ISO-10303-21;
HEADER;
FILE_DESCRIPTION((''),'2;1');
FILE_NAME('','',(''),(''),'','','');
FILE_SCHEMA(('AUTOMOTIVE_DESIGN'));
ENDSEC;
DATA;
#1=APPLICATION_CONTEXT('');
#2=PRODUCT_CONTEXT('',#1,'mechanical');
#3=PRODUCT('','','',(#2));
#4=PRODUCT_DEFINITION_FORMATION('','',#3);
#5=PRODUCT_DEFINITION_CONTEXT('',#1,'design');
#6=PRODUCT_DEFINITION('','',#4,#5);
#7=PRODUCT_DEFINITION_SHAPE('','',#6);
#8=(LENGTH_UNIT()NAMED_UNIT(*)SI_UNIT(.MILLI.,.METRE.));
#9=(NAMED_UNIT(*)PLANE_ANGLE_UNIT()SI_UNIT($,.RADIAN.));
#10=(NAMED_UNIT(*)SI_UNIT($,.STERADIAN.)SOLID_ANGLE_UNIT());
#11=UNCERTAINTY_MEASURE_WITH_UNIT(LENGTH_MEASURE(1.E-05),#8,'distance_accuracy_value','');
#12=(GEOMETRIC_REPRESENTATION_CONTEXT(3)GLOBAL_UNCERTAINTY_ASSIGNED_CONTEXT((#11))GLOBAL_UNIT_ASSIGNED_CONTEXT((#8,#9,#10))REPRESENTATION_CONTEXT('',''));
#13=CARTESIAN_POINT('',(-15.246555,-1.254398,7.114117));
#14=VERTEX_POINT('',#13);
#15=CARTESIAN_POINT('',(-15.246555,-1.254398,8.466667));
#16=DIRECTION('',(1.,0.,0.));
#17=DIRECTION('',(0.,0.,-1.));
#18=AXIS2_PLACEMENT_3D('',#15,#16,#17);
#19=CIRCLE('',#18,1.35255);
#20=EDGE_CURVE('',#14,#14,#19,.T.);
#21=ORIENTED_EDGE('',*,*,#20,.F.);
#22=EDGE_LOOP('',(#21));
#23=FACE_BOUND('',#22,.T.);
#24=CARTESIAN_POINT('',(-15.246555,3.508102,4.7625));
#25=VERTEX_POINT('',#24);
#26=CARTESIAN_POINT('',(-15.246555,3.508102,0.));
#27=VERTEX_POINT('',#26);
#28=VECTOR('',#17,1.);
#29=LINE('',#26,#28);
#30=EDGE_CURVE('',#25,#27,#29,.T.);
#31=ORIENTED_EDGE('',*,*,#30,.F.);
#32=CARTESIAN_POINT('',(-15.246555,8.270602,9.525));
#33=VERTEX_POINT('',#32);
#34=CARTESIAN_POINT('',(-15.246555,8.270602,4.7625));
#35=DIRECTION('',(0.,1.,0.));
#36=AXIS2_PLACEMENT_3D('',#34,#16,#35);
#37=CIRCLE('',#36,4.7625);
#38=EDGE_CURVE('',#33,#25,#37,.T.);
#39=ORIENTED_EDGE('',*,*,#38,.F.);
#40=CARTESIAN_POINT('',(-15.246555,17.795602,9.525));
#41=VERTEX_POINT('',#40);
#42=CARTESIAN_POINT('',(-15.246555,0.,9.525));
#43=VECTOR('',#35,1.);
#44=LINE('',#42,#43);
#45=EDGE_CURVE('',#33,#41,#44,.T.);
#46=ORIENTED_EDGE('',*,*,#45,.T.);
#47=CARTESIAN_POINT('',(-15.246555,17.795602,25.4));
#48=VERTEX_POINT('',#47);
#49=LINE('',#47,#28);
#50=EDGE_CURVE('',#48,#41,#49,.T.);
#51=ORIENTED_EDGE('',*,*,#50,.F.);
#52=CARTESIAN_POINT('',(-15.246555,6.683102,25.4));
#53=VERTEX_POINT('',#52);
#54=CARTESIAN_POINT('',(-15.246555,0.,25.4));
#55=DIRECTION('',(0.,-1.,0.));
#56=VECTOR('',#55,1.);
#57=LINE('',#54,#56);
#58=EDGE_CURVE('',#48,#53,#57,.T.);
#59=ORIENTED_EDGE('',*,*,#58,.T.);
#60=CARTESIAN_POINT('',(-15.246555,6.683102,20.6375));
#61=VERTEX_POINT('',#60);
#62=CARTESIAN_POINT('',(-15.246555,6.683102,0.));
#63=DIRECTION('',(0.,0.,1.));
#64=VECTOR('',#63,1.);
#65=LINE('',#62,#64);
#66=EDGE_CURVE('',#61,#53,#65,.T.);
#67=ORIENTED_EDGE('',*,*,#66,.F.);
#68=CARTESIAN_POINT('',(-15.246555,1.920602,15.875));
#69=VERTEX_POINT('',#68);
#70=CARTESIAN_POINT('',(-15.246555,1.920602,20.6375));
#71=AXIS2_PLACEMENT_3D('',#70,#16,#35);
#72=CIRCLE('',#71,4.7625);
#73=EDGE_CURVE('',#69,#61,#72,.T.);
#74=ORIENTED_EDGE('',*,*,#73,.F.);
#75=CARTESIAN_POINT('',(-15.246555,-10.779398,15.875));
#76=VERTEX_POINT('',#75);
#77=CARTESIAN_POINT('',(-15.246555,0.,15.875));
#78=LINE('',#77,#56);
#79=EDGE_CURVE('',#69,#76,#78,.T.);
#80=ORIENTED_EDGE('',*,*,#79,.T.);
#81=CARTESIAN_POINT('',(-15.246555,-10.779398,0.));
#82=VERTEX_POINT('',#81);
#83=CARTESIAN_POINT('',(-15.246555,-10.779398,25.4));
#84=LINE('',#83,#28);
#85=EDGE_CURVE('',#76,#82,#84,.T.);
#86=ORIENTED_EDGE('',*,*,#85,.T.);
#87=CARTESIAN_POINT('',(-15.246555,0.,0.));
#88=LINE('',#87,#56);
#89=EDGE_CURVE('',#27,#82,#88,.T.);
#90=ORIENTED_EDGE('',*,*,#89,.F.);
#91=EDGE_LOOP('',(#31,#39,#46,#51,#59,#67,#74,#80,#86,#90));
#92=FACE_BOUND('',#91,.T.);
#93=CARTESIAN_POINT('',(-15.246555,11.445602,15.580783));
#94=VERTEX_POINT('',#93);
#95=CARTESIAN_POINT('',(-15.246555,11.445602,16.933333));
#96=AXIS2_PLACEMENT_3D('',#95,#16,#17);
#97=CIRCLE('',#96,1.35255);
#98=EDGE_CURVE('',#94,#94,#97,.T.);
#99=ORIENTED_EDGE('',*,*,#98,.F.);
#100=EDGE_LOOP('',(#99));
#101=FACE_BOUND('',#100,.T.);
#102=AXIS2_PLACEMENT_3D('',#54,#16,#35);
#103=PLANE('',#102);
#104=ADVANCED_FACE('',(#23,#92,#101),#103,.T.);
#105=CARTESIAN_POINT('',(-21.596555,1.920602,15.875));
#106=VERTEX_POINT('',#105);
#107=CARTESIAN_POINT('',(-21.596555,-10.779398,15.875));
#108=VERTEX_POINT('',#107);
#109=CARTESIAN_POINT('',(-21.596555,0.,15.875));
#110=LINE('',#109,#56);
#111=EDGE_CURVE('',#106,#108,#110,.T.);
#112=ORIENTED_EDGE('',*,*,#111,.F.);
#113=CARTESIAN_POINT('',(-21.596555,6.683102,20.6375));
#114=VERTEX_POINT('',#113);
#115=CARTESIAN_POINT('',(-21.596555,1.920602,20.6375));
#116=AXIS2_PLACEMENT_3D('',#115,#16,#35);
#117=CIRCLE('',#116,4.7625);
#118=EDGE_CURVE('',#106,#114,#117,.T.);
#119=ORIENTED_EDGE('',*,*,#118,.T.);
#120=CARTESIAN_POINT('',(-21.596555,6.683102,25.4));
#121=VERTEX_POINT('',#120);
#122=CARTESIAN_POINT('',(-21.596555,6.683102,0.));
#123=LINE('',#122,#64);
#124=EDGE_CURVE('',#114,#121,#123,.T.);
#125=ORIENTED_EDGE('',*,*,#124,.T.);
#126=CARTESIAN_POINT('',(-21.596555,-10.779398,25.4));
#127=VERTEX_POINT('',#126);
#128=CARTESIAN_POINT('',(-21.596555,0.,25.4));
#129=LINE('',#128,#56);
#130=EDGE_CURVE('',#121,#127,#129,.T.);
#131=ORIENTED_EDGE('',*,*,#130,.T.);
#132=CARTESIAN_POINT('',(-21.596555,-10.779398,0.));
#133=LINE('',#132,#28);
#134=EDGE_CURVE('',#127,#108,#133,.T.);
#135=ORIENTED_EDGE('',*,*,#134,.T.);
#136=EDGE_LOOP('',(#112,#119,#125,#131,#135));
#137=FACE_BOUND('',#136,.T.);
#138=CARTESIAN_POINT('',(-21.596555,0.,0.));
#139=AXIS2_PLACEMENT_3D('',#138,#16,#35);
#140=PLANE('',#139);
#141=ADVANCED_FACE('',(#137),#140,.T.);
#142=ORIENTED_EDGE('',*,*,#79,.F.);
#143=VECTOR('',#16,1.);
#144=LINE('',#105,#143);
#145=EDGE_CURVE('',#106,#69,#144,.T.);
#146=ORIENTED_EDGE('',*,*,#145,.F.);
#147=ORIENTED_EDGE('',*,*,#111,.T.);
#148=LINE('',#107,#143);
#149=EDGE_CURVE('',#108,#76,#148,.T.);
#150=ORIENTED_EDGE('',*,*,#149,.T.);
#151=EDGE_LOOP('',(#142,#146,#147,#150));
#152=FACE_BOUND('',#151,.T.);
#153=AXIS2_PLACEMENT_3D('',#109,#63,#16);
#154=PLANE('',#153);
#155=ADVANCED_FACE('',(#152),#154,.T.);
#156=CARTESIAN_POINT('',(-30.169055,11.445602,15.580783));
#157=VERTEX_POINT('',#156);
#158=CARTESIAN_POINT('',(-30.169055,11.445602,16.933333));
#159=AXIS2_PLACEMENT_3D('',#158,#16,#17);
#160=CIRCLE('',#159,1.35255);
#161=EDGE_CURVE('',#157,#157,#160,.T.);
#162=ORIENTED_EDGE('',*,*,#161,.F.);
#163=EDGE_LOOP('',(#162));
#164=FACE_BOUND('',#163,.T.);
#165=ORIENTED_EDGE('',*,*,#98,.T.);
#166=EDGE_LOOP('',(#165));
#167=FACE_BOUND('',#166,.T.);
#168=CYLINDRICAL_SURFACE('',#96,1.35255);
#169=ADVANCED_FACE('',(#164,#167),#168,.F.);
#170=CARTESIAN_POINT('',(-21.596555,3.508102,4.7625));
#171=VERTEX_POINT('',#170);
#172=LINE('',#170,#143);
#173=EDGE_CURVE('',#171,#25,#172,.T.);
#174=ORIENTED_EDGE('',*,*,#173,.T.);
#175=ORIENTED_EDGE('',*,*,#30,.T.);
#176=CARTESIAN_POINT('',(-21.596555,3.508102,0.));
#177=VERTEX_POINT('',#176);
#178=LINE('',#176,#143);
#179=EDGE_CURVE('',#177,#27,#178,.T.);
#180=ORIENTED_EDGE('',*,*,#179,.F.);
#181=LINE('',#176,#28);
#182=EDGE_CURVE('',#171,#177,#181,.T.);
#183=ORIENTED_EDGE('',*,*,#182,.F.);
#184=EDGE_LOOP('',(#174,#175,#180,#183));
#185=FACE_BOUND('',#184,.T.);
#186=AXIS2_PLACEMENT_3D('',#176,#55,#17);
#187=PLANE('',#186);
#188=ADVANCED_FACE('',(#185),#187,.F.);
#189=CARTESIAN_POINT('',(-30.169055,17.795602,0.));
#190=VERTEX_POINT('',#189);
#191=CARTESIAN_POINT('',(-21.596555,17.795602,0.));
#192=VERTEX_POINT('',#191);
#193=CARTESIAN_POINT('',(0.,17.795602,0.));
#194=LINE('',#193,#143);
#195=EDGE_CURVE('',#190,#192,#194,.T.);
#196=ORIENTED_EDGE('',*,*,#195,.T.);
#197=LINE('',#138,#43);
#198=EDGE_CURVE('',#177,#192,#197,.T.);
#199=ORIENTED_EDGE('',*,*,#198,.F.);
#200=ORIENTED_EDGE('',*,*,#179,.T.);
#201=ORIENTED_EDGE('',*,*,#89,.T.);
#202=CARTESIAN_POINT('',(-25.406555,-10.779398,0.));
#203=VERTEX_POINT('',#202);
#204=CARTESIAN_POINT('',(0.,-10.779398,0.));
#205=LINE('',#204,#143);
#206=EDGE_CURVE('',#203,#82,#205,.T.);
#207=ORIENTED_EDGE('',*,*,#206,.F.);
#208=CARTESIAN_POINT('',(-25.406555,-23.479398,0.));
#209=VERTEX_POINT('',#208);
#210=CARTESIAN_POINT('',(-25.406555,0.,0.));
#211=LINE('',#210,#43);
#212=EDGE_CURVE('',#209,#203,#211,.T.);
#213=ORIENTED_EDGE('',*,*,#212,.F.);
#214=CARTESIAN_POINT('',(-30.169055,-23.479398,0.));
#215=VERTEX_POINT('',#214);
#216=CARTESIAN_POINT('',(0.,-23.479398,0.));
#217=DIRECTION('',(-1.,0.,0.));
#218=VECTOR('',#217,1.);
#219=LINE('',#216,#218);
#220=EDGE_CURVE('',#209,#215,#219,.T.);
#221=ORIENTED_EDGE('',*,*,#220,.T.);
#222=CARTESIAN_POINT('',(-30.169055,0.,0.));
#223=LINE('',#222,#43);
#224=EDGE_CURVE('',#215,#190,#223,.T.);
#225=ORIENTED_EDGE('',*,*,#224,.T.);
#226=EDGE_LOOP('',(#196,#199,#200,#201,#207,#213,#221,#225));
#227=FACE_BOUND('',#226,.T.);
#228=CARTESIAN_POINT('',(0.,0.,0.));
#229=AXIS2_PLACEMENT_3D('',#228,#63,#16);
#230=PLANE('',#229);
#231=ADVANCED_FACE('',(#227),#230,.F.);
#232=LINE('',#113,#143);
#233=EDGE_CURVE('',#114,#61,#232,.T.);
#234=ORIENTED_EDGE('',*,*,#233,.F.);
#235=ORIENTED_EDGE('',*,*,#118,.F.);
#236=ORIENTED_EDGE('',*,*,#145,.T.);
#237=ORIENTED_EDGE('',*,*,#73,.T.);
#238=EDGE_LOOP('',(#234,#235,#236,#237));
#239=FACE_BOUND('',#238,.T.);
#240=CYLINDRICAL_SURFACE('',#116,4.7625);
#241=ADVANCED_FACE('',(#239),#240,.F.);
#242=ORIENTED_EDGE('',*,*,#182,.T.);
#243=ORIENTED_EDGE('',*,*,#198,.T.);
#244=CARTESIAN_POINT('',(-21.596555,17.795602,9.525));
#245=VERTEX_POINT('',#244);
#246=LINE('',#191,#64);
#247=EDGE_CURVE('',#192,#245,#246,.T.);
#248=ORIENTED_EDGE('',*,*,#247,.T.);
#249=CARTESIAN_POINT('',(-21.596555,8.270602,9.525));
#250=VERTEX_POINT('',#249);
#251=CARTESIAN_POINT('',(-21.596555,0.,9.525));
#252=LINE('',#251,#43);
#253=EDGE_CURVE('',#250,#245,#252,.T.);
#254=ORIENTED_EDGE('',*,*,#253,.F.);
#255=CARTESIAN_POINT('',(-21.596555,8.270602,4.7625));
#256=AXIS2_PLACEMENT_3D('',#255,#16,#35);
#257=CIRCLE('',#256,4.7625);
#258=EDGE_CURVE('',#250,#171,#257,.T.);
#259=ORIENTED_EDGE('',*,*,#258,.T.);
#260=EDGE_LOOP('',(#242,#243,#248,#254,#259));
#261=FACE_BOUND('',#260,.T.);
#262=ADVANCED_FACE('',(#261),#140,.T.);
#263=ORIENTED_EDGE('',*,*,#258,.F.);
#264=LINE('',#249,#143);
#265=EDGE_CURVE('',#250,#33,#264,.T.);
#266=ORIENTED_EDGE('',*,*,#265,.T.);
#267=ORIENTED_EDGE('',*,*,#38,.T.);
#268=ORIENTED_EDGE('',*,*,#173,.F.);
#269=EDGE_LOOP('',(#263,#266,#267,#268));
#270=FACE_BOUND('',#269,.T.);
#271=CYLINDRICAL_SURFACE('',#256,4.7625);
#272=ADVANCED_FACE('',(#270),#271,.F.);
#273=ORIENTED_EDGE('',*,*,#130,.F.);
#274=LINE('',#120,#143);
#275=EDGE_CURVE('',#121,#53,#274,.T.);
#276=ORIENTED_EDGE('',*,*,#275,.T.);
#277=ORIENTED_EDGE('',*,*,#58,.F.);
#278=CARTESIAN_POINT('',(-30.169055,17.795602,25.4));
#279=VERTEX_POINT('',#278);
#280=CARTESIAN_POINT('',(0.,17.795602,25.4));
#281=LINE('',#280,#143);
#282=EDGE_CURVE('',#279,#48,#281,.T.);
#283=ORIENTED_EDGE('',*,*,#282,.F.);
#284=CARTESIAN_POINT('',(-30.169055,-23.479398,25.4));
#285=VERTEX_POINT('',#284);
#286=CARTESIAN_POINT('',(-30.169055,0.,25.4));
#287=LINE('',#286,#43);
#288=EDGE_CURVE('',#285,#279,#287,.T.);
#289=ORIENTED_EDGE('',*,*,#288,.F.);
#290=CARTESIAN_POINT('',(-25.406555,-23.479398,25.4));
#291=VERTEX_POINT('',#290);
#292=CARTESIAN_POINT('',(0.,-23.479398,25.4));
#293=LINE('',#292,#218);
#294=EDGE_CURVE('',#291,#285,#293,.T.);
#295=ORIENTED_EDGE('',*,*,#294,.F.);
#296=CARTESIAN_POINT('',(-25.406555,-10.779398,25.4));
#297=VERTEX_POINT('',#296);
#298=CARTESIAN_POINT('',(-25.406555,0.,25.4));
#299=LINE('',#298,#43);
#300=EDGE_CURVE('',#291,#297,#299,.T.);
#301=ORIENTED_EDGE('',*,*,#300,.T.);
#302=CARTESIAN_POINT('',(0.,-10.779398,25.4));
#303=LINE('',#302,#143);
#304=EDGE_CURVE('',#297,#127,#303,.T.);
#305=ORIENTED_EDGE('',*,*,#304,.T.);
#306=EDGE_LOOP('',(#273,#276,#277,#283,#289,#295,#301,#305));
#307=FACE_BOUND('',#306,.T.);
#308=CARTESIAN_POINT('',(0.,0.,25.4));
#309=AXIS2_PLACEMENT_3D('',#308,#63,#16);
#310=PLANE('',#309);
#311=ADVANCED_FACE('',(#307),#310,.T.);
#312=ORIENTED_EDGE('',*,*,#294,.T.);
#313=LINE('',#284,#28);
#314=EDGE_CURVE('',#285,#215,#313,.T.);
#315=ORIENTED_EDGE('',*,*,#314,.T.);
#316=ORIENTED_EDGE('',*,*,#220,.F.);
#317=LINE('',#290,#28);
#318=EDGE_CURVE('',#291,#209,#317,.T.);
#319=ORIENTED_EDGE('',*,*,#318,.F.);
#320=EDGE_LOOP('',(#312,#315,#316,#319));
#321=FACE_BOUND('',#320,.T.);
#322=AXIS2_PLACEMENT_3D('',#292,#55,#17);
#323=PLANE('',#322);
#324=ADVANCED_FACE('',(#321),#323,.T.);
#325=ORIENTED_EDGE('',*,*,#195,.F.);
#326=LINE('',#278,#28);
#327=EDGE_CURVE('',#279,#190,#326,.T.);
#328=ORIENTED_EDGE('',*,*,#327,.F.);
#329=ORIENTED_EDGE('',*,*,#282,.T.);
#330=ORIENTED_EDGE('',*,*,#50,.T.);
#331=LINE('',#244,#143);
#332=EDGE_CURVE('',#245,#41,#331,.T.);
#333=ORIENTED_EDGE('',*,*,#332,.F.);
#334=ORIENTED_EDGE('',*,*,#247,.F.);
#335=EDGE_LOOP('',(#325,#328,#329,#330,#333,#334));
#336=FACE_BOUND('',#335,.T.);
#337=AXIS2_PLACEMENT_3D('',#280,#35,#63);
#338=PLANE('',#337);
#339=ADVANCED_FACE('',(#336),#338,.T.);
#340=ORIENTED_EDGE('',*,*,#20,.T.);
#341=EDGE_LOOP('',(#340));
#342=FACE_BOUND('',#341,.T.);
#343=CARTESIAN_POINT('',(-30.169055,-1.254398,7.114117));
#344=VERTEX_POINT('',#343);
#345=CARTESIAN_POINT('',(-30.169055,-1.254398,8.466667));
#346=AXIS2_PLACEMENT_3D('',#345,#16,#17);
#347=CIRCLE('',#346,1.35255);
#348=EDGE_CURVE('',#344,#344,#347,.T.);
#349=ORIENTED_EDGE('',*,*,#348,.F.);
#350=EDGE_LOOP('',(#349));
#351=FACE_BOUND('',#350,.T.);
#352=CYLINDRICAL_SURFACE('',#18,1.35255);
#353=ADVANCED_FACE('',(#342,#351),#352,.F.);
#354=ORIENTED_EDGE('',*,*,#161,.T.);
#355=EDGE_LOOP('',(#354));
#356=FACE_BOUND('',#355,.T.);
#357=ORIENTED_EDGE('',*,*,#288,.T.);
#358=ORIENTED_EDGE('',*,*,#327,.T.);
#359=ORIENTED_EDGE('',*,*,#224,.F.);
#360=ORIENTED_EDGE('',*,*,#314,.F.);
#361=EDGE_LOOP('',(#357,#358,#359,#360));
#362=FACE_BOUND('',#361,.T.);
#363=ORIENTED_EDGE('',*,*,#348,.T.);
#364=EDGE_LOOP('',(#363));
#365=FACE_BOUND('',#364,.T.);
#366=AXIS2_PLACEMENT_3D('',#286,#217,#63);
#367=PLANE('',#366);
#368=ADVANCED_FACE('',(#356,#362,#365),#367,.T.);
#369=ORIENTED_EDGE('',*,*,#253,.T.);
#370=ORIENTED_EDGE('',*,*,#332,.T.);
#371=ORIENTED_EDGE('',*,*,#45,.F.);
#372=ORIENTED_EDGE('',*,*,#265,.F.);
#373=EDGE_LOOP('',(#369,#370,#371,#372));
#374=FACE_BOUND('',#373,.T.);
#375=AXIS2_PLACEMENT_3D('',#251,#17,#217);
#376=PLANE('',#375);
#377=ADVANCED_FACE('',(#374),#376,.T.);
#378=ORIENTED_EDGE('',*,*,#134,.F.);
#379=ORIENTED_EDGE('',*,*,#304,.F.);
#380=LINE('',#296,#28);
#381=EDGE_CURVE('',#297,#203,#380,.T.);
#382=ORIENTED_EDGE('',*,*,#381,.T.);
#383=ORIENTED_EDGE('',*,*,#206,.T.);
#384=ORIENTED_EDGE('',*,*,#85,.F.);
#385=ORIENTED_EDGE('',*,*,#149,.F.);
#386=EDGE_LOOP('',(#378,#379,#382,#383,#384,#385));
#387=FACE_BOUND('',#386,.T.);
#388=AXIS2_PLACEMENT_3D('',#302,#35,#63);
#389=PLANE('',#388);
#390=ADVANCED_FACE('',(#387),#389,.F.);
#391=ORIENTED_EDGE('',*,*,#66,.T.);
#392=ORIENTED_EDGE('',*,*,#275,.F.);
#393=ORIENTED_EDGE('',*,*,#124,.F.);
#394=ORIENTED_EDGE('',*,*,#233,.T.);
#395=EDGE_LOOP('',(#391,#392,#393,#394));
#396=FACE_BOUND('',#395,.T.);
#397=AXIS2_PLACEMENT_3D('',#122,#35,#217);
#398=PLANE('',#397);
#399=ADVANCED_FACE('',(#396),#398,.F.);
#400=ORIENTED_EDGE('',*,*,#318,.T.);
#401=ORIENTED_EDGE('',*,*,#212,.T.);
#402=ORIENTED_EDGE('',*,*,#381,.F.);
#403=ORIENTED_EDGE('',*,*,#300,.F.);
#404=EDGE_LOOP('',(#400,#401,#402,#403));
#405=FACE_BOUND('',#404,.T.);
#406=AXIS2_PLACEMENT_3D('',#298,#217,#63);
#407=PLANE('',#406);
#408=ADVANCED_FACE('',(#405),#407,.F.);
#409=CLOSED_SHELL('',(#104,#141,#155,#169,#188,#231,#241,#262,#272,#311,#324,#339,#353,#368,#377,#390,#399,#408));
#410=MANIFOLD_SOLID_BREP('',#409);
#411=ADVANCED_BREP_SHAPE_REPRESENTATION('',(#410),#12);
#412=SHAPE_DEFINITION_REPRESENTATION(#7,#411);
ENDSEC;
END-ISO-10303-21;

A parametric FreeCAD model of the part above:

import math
import FreeCAD as App
import Part
import Sketcher
from FreeCAD import Vector
Q = App.Units.Quantity


def add_polygon(sketch, points):
    """Adds a closed chain of lines whose ends are joined by coincident constraints."""
    first, n = sketch.GeometryCount, len(points)
    for a, b in zip(points, points[1:] + points[:1]):
        sketch.addGeometry(Part.LineSegment(App.Vector(*a, 0), App.Vector(*b, 0)), False)
    for i in range(n):
        sketch.addConstraint(Sketcher.Constraint("Coincident", first + i, 2, first + (i + 1) % n, 1))

doc = App.newDocument("Part")
params = doc.addObject("Spreadsheet::Sheet", "Params")
for row, (alias, value) in enumerate([
    ("sketch1_width", "0.4 in"),
    ("sketch1_height", "0.5 in"),
    ("sketch1_width2", "0.1875 in"),
    ("sketch1_height2", "1.125 in"),
    ("pad1_length", "1 in"),
    ("hole_diameter", "0.1065 in"),
    ("sketch3_width", "0.5 in"),
    ("sketch3_radius", "0.1875 in"),
    ("sketch3_width2", "0.375 in"),
    ("pocket1_length", "0.25 in"),
], start=1):
    params.set(f"A{row}", alias)
    params.set(f"B{row}", "=" + value)
    params.setAlias(f"B{row}", alias)

body = doc.addObject("PartDesign::Body", "Body")

sketch1 = body.newObject("Sketcher::SketchObject", "Sketch")
sketch1.AttachmentSupport = (doc.getObject("XY_Plane"), [""])
sketch1.MapMode = "FlatFace"
add_polygon(sketch1, [(-30.2, -23.5), (-25.4, -23.5), (-25.4, -10.8), (-15.2, -10.8), (-15.2, 17.8), (-30.2, 17.8)])
sketch1.addConstraint(Sketcher.Constraint("Horizontal", 0))
sketch1.addConstraint(Sketcher.Constraint("Vertical", 1))
sketch1.addConstraint(Sketcher.Constraint("Horizontal", 2))
sketch1.addConstraint(Sketcher.Constraint("Vertical", 3))
sketch1.addConstraint(Sketcher.Constraint("Horizontal", 4))
sketch1.addConstraint(Sketcher.Constraint("Vertical", 5))
sketch1.addConstraint(Sketcher.Constraint("DistanceX", 2, 1, 2, 2, Q("0.4 in")))
sketch1.addConstraint(Sketcher.Constraint("DistanceY", 1, 1, 1, 2, Q("0.5 in")))
sketch1.addConstraint(Sketcher.Constraint("DistanceX", 0, 1, 0, 2, Q("0.1875 in")))
sketch1.addConstraint(Sketcher.Constraint("DistanceY", 3, 1, 3, 2, Q("1.125 in")))
sketch1.addConstraint(Sketcher.Constraint("DistanceX", 0, 2, -1, 1, 25.406555))
sketch1.addConstraint(Sketcher.Constraint("DistanceY", 0, 2, -1, 1, 23.479398))
sketch1.setExpression("Constraints[12]", "Params.sketch1_width")
sketch1.setExpression("Constraints[13]", "Params.sketch1_height")
sketch1.setExpression("Constraints[14]", "Params.sketch1_width2")
sketch1.setExpression("Constraints[15]", "Params.sketch1_height2")
pad1 = body.newObject("PartDesign::Pad", "Pad")
pad1.Profile = sketch1
pad1.setExpression("Length", "Params.pad1_length")

sketch2 = body.newObject("Sketcher::SketchObject", "Sketch001")
sketch2.AttachmentSupport = (doc.getObject("YZ_Plane"), [""])
sketch2.MapMode = "FlatFace"
sketch2.AttachmentOffset = App.Placement(Vector(0, 0, -15.246555), App.Rotation())
sketch2.addGeometry(Part.Circle(Vector(11.4, 16.9, 0), Vector(0, 0, 1), 1.4), False)
sketch2.addGeometry(Part.Circle(Vector(-1.3, 8.5, 0), Vector(0, 0, 1), 1.4), False)
sketch2.addConstraint(Sketcher.Constraint("Equal", 0, 1))
sketch2.addConstraint(Sketcher.Constraint("Diameter", 0, Q("0.1065 in")))
sketch2.addConstraint(Sketcher.Constraint("DistanceX", 1, 3, 0, 3, Q("0.5 in")))
sketch2.addConstraint(Sketcher.Constraint("DistanceX", -1, 1, 0, 3, 11.445602))
sketch2.addConstraint(Sketcher.Constraint("DistanceY", -1, 1, 0, 3, 16.933333))
sketch2.addConstraint(Sketcher.Constraint("DistanceY", -1, 1, 1, 3, 8.466667))
doc.recompute()
hole = body.newObject("PartDesign::Hole", "Hole")
hole.Profile = sketch2
hole.ThreadType = "None"
hole.setExpression("Diameter", "Params.hole_diameter")
hole.DepthType = "ThroughAll"

sketch3 = body.newObject("Sketcher::SketchObject", "Sketch002")
sketch3.AttachmentSupport = (doc.getObject("YZ_Plane"), [""])
sketch3.MapMode = "FlatFace"
sketch3.AttachmentOffset = App.Placement(Vector(0, 0, -15.246555), App.Rotation())
sketch3.addGeometry(Part.LineSegment(Vector(6.7, 20.6, 0), Vector(6.7, 25.4, 0)), False)
sketch3.addGeometry(Part.LineSegment(Vector(6.7, 25.4, 0), Vector(-10.8, 25.4, 0)), False)
sketch3.addGeometry(Part.LineSegment(Vector(-10.8, 25.4, 0), Vector(-10.8, 15.9, 0)), False)
sketch3.addGeometry(Part.LineSegment(Vector(-10.8, 15.9, 0), Vector(1.9, 15.9, 0)), False)
sketch3.addGeometry(Part.ArcOfCircle(Part.Circle(Vector(1.9, 20.6, 0), Vector(0, 0, 1), 4.8), math.radians(-90), math.radians(0)), False)
sketch3.addGeometry(Part.LineSegment(Vector(17.8, 0, 0), Vector(17.8, 9.5, 0)), False)
sketch3.addGeometry(Part.LineSegment(Vector(17.8, 9.5, 0), Vector(8.3, 9.5, 0)), False)
sketch3.addGeometry(Part.ArcOfCircle(Part.Circle(Vector(8.3, 4.8, 0), Vector(0, 0, 1), 4.8), math.radians(90), math.radians(180)), False)
sketch3.addGeometry(Part.LineSegment(Vector(3.5, 4.8, 0), Vector(3.5, 0, 0)), False)
sketch3.addGeometry(Part.LineSegment(Vector(3.5, 0, 0), Vector(17.8, 0, 0)), False)
sketch3.addConstraint(Sketcher.Constraint("Coincident", 0, 2, 1, 1))
sketch3.addConstraint(Sketcher.Constraint("Coincident", 1, 2, 2, 1))
sketch3.addConstraint(Sketcher.Constraint("Coincident", 2, 2, 3, 1))
sketch3.addConstraint(Sketcher.Constraint("Tangent", 3, 2, 4, 1))
sketch3.addConstraint(Sketcher.Constraint("Tangent", 4, 2, 0, 1))
sketch3.addConstraint(Sketcher.Constraint("Coincident", 5, 2, 6, 1))
sketch3.addConstraint(Sketcher.Constraint("Tangent", 6, 2, 7, 1))
sketch3.addConstraint(Sketcher.Constraint("Tangent", 7, 2, 8, 1))
sketch3.addConstraint(Sketcher.Constraint("Coincident", 8, 2, 9, 1))
sketch3.addConstraint(Sketcher.Constraint("Coincident", 9, 2, 5, 1))
sketch3.addConstraint(Sketcher.Constraint("Vertical", 0))
sketch3.addConstraint(Sketcher.Constraint("Horizontal", 1))
sketch3.addConstraint(Sketcher.Constraint("Vertical", 2))
sketch3.addConstraint(Sketcher.Constraint("Horizontal", 3))
sketch3.addConstraint(Sketcher.Constraint("Vertical", 5))
sketch3.addConstraint(Sketcher.Constraint("Horizontal", 6))
sketch3.addConstraint(Sketcher.Constraint("Vertical", 8))
sketch3.addConstraint(Sketcher.Constraint("Horizontal", 9))
sketch3.addConstraint(Sketcher.Constraint("Equal", 4, 7))
sketch3.addConstraint(Sketcher.Constraint("PointOnObject", 8, 2, -1))
sketch3.addConstraint(Sketcher.Constraint("Equal", 6, 2))
sketch3.addConstraint(Sketcher.Constraint("Equal", 2, 5))
sketch3.addConstraint(Sketcher.Constraint("DistanceX", 3, 1, 3, 2, Q("0.5 in")))
sketch3.addConstraint(Sketcher.Constraint("DistanceY", -1, 1, 0, 2, Q("1 in")))
sketch3.addConstraint(Sketcher.Constraint("Radius", 4, Q("0.1875 in")))
sketch3.addConstraint(Sketcher.Constraint("DistanceX", 6, 2, 6, 1, Q("0.375 in")))
sketch3.addConstraint(Sketcher.Constraint("DistanceX", 4, 3, 7, 3, Q("0.25 in")))
sketch3.addConstraint(Sketcher.Constraint("DistanceX", -1, 1, 4, 3, 1.920602))
sketch3.setExpression("Constraints[22]", "Params.sketch3_width")
sketch3.setExpression("Constraints[24]", "Params.sketch3_radius")
sketch3.setExpression("Constraints[25]", "Params.sketch3_width2")
pocket1 = body.newObject("PartDesign::Pocket", "Pocket")
pocket1.Profile = sketch3
pocket1.setExpression("Length", "Params.pocket1_length")

doc.recompute()
